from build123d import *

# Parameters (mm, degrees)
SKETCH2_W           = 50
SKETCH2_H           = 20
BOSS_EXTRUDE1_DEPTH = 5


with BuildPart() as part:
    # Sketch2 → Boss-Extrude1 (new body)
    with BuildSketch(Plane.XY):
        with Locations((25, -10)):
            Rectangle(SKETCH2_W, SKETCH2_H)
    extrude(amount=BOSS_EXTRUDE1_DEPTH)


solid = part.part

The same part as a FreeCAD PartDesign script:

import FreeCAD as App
import Part
import Sketcher

V = App.Vector
Q = App.Units.Quantity


def add_polygon(sketch, points):
    """Adds a closed chain of lines whose ends are joined by coincident constraints."""
    first, n = sketch.GeometryCount, len(points)
    for a, b in zip(points, points[1:] + points[:1]):
        sketch.addGeometry(Part.LineSegment(App.Vector(*a, 0), App.Vector(*b, 0)), False)
    for i in range(n):
        sketch.addConstraint(Sketcher.Constraint("Coincident", first + i, 2, first + (i + 1) % n, 1))

doc = App.newDocument("Part")
params = doc.addObject("Spreadsheet::Sheet", "Params")
for row, (alias, value) in enumerate([
    ("sketch1_width", "50 mm"),
    ("sketch1_height", "20 mm"),
    ("pad1_length", "5 mm"),
], start=1):
    params.set(f"A{row}", alias)
    params.set(f"B{row}", "=" + value)
    params.setAlias(f"B{row}", alias)

body = doc.addObject("PartDesign::Body", "Body")

# Sketch on XY plane
sketch1 = body.newObject("Sketcher::SketchObject", "Sketch")
sketch1.AttachmentSupport = (doc.getObject("XY_Plane"), [""])
sketch1.MapMode = "FlatFace"
add_polygon(sketch1, [(0, 0), (0, -20), (50, -20), (50, 0)])  # lines 0-3
sketch1.addConstraint([
    Sketcher.Constraint("Vertical", 0),
    Sketcher.Constraint("Horizontal", 1),
    Sketcher.Constraint("Vertical", 2),
    Sketcher.Constraint("Horizontal", 3),
    Sketcher.Constraint("Coincident", 3, 2, -1, 1),
    Sketcher.Constraint("DistanceX", 1, 1, 1, 2, Q("50 mm")),
    Sketcher.Constraint("DistanceY", 0, 2, 0, 1, Q("20 mm")),
])
sketch1.setExpression("Constraints[9]", "Params.sketch1_width")
sketch1.setExpression("Constraints[10]", "Params.sketch1_height")
pad1 = body.newObject("PartDesign::Pad", "Pad")
pad1.Profile = sketch1
pad1.setExpression("Length", "Params.pad1_length")

doc.recompute()
